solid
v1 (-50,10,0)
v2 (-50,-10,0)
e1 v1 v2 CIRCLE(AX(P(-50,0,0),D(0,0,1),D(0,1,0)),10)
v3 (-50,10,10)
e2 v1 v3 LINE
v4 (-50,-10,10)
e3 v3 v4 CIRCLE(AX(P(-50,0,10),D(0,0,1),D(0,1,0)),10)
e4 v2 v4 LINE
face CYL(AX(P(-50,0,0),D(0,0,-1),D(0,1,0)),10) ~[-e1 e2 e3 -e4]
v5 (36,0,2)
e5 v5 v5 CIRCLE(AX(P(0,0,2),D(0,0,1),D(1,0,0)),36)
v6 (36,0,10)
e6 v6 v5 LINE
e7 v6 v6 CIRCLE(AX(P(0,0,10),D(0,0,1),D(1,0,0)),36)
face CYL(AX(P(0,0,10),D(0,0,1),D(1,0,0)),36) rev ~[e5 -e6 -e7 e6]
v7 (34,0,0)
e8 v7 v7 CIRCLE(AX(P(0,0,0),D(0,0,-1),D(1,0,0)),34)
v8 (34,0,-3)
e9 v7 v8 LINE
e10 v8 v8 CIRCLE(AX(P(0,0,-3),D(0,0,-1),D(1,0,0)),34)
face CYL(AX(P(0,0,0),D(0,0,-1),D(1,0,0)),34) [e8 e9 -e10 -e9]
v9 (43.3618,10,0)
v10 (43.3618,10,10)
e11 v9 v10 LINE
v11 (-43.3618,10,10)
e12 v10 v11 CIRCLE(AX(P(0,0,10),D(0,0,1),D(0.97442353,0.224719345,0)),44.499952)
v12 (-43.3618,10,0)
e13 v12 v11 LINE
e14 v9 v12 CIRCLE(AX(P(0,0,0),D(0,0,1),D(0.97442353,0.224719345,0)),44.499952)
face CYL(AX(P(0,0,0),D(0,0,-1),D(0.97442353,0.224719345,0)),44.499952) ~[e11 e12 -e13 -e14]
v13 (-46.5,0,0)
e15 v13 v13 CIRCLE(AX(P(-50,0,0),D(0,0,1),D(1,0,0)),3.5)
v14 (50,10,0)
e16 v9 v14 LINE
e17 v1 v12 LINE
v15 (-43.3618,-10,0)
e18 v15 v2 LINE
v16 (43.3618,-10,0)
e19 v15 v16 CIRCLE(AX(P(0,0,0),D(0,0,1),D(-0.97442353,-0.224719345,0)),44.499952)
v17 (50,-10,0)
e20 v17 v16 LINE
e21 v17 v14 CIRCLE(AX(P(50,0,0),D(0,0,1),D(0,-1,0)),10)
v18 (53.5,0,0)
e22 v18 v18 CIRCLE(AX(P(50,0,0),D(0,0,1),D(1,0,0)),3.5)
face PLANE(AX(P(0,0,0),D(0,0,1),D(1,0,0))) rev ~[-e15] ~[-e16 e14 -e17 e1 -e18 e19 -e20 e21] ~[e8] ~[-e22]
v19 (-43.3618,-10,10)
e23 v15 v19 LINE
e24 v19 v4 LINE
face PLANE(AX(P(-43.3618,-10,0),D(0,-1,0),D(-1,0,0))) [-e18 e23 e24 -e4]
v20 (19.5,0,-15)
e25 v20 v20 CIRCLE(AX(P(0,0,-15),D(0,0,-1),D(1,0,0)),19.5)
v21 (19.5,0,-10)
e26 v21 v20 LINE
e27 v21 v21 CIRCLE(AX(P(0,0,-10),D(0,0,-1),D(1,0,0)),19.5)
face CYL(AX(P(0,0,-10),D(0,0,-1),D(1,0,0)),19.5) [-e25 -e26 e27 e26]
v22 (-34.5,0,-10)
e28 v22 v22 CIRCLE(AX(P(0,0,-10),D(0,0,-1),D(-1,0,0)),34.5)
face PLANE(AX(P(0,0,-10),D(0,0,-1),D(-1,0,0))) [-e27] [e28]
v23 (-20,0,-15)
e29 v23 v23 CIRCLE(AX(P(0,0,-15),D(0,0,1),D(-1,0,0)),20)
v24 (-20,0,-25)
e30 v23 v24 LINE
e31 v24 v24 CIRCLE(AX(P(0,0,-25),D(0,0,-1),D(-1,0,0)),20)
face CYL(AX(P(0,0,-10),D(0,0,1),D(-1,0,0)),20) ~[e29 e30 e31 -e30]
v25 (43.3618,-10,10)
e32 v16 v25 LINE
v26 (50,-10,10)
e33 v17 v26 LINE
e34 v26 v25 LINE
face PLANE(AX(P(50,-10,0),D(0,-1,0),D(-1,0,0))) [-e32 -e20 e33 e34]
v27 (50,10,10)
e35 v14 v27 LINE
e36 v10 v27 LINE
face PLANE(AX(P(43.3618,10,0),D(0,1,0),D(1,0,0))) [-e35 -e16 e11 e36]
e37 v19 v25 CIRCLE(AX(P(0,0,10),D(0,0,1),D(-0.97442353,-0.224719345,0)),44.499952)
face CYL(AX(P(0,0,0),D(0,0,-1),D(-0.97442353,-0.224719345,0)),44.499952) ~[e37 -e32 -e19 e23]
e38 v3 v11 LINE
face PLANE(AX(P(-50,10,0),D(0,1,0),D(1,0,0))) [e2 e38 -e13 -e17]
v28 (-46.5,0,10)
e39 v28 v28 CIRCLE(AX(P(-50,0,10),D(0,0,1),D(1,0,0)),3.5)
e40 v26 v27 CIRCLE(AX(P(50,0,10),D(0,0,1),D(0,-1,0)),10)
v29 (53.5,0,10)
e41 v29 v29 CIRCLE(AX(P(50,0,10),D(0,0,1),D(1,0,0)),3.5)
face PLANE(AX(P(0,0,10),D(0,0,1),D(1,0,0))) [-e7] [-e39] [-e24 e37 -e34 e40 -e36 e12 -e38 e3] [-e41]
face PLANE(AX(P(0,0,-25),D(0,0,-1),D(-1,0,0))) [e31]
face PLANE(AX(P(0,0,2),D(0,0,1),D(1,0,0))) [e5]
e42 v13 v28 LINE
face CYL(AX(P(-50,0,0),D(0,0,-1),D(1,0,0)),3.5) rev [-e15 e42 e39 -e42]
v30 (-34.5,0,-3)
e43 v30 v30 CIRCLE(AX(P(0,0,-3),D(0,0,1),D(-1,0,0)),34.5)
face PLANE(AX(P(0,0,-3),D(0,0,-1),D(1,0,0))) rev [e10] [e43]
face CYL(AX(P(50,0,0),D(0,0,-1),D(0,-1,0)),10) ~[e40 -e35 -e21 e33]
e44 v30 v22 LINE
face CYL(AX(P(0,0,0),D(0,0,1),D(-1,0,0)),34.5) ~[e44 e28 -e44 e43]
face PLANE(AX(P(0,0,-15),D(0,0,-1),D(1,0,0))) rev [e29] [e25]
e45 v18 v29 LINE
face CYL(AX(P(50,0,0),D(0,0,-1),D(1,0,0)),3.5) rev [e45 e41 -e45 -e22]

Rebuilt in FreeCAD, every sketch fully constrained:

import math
import FreeCAD as App
import Part
import Sketcher

doc = App.newDocument("Part")
body = doc.addObject("PartDesign::Body", "Body")

# Sketch on XY plane
sketch1 = doc.addObject("Sketcher::SketchObject", "Sketch")
body.addObject(sketch1)
sketch1.AttachmentSupport = (doc.XY_Plane, [""])
sketch1.MapMode = "FlatFace"
sketch1.addGeometry(Part.LineSegment(App.Vector(43.3618, -10, 0), App.Vector(50, -10, 0)), False)
sketch1.addGeometry(Part.ArcOfCircle(Part.Circle(App.Vector(50, 0, 0), App.Vector(0, 0, 1), 10), math.radians(-90), math.radians(90)), False)
sketch1.addGeometry(Part.LineSegment(App.Vector(50, 10, 0), App.Vector(43.3618, 10, 0)), False)
sketch1.addGeometry(Part.ArcOfCircle(Part.Circle(App.Vector(0, 0, 0), App.Vector(0, 0, 1), 44.499952), math.radians(12.986375), math.radians(167.013625)), False)
sketch1.addGeometry(Part.LineSegment(App.Vector(-43.3618, 10, 0), App.Vector(-50, 10, 0)), False)
sketch1.addGeometry(Part.ArcOfCircle(Part.Circle(App.Vector(-50, 0, 0), App.Vector(0, 0, 1), 10), math.radians(90), math.radians(270)), False)
sketch1.addGeometry(Part.LineSegment(App.Vector(-50, -10, 0), App.Vector(-43.3618, -10, 0)), False)
sketch1.addGeometry(Part.ArcOfCircle(Part.Circle(App.Vector(0, 0, 0), App.Vector(0, 0, 1), 44.499952), math.radians(-167.013625), math.radians(-12.986375)), False)
sketch1.addGeometry(Part.Circle(App.Vector(-50, 0, 0), App.Vector(0, 0, 1), 3.5), False)
sketch1.addGeometry(Part.Circle(App.Vector(50, 0, 0), App.Vector(0, 0, 1), 3.5), False)
sketch1.addConstraint(Sketcher.Constraint("Tangent", 0, 2, 1, 1))
sketch1.addConstraint(Sketcher.Constraint("Tangent", 1, 2, 2, 1))
sketch1.addConstraint(Sketcher.Constraint("Coincident", 2, 2, 3, 1))
sketch1.addConstraint(Sketcher.Constraint("Coincident", 3, 2, 4, 1))
sketch1.addConstraint(Sketcher.Constraint("Tangent", 4, 2, 5, 1))
sketch1.addConstraint(Sketcher.Constraint("Tangent", 5, 2, 6, 1))
sketch1.addConstraint(Sketcher.Constraint("Coincident", 6, 2, 7, 1))
sketch1.addConstraint(Sketcher.Constraint("Coincident", 7, 2, 0, 1))
sketch1.addConstraint(Sketcher.Constraint("Horizontal", 0))
sketch1.addConstraint(Sketcher.Constraint("Horizontal", 2))
sketch1.addConstraint(Sketcher.Constraint("Horizontal", 4))
sketch1.addConstraint(Sketcher.Constraint("Horizontal", 6))
sketch1.addConstraint(Sketcher.Constraint("Coincident", 3, 3, -1, 1))
sketch1.addConstraint(Sketcher.Constraint("Coincident", 7, 3, -1, 1))
sketch1.addConstraint(Sketcher.Constraint("Coincident", 8, 3, 5, 3))
sketch1.addConstraint(Sketcher.Constraint("Coincident", 9, 3, 1, 3))
sketch1.addConstraint(Sketcher.Constraint("Equal", 1, 5))
sketch1.addConstraint(Sketcher.Constraint("Equal", 3, 7))
sketch1.addConstraint(Sketcher.Constraint("Equal", 8, 9))
sketch1.addConstraint(Sketcher.Constraint("Symmetric", 1, 3, 5, 3, -1, 1))
sketch1.addConstraint(Sketcher.Constraint("PointOnObject", 1, 3, -1))
sketch1.addConstraint(Sketcher.Constraint("Diameter", 8, 7.0))
sketch1.addConstraint(Sketcher.Constraint("Radius", 1, 10.0))
sketch1.addConstraint(Sketcher.Constraint("DistanceX", -1, 1, 1, 3, 50.0))
sketch1.addConstraint(Sketcher.Constraint("Radius", 3, 44.5))
pad1 = doc.addObject("PartDesign::Pad", "Pad")
body.addObject(pad1)
pad1.Profile = sketch1
pad1.Length = 10

# Sketch on XY plane
sketch2 = doc.addObject("Sketcher::SketchObject", "Sketch001")
body.addObject(sketch2)
sketch2.AttachmentSupport = (doc.XY_Plane, [""])
sketch2.MapMode = "FlatFace"
sketch2.AttachmentOffset = App.Placement(App.Vector(0, 0, 10), App.Rotation())
sketch2.addGeometry(Part.Circle(App.Vector(0, 0, 0), App.Vector(0, 0, 1), 36), False)
sketch2.addConstraint(Sketcher.Constraint("Coincident", 0, 3, -1, 1))
sketch2.addConstraint(Sketcher.Constraint("Diameter", 0, 72.0))
pocket1 = doc.addObject("PartDesign::Pocket", "Pocket")
body.addObject(pocket1)
pocket1.Profile = sketch2
pocket1.Length = 8

# Sketch on XY plane
sketch3 = doc.addObject("Sketcher::SketchObject", "Sketch002")
body.addObject(sketch3)
sketch3.AttachmentSupport = (doc.XY_Plane, [""])
sketch3.MapMode = "FlatFace"
sketch3.addGeometry(Part.Circle(App.Vector(0, 0, 0), App.Vector(0, 0, 1), 34.5), False)
sketch3.addConstraint(Sketcher.Constraint("Coincident", 0, 3, -1, 1))
sketch3.addConstraint(Sketcher.Constraint("Diameter", 0, 69.0))
pad2 = doc.addObject("PartDesign::Pad", "Pad001")
body.addObject(pad2)
pad2.Profile = sketch3
pad2.Length = 10
pad2.Reversed = True

# Sketch on XY plane
sketch4 = doc.addObject("Sketcher::SketchObject", "Sketch003")
body.addObject(sketch4)
sketch4.AttachmentSupport = (doc.XY_Plane, [""])
sketch4.MapMode = "FlatFace"
sketch4.AttachmentOffset = App.Placement(App.Vector(0, 0, -10), App.Rotation())
sketch4.addGeometry(Part.Circle(App.Vector(0, 0, 0), App.Vector(0, 0, 1), 20), False)
sketch4.addConstraint(Sketcher.Constraint("Coincident", 0, 3, -1, 1))
sketch4.addConstraint(Sketcher.Constraint("Diameter", 0, 40.0))
pad3 = doc.addObject("PartDesign::Pad", "Pad002")
body.addObject(pad3)
pad3.Profile = sketch4
pad3.Length = 15
pad3.Reversed = True

# Sketch on XZ plane
sketch5 = doc.addObject("Sketcher::SketchObject", "Sketch004")
body.addObject(sketch5)
sketch5.AttachmentSupport = (doc.XZ_Plane, [""])
sketch5.MapMode = "FlatFace"
sketch5.addGeometry(Part.LineSegment(App.Vector(34, 0, 0), App.Vector(34.5, 0, 0)), False)
sketch5.addGeometry(Part.LineSegment(App.Vector(34.5, 0, 0), App.Vector(34.5, -3, 0)), False)
sketch5.addGeometry(Part.LineSegment(App.Vector(34.5, -3, 0), App.Vector(34, -3, 0)), False)
sketch5.addGeometry(Part.LineSegment(App.Vector(34, -3, 0), App.Vector(34, 0, 0)), False)
sketch5.addGeometry(Part.LineSegment(App.Vector(19.5, -10, 0), App.Vector(20, -10, 0)), False)
sketch5.addGeometry(Part.LineSegment(App.Vector(20, -10, 0), App.Vector(20, -15, 0)), False)
sketch5.addGeometry(Part.LineSegment(App.Vector(20, -15, 0), App.Vector(19.5, -15, 0)), False)
sketch5.addGeometry(Part.LineSegment(App.Vector(19.5, -15, 0), App.Vector(19.5, -10, 0)), False)
sketch5.addConstraint(Sketcher.Constraint("Coincident", 0, 2, 1, 1))
sketch5.addConstraint(Sketcher.Constraint("Coincident", 1, 2, 2, 1))
sketch5.addConstraint(Sketcher.Constraint("Coincident", 2, 2, 3, 1))
sketch5.addConstraint(Sketcher.Constraint("Coincident", 3, 2, 0, 1))
sketch5.addConstraint(Sketcher.Constraint("Coincident", 4, 2, 5, 1))
sketch5.addConstraint(Sketcher.Constraint("Coincident", 5, 2, 6, 1))
sketch5.addConstraint(Sketcher.Constraint("Coincident", 6, 2, 7, 1))
sketch5.addConstraint(Sketcher.Constraint("Coincident", 7, 2, 4, 1))
sketch5.addConstraint(Sketcher.Constraint("Horizontal", 0))
sketch5.addConstraint(Sketcher.Constraint("Vertical", 1))
sketch5.addConstraint(Sketcher.Constraint("Horizontal", 2))
sketch5.addConstraint(Sketcher.Constraint("Vertical", 3))
sketch5.addConstraint(Sketcher.Constraint("Horizontal", 4))
sketch5.addConstraint(Sketcher.Constraint("Vertical", 5))
sketch5.addConstraint(Sketcher.Constraint("Horizontal", 6))
sketch5.addConstraint(Sketcher.Constraint("Vertical", 7))
sketch5.addConstraint(Sketcher.Constraint("PointOnObject", 0, 2, -1))
sketch5.addConstraint(Sketcher.Constraint("Equal", 2, 4))
sketch5.addConstraint(Sketcher.Constraint("DistanceY", 1, 2, 1, 1, 3.0))
sketch5.addConstraint(Sketcher.Constraint("DistanceY", 5, 2, 5, 1, 5.0))
sketch5.addConstraint(Sketcher.Constraint("DistanceX", 0, 1, 0, 2, 0.5))
sketch5.addConstraint(Sketcher.Constraint("DistanceY", 4, 2, 2, 2, 7.0))
sketch5.addConstraint(Sketcher.Constraint("DistanceX", -1, 1, 2, 2, 34.0))
sketch5.addConstraint(Sketcher.Constraint("DistanceX", -1, 1, 4, 2, 20.0))
groove = doc.addObject("PartDesign::Groove", "Groove")
body.addObject(groove)
groove.Profile = sketch5
groove.ReferenceAxis = (sketch5, ["V_Axis"])
groove.Angle = 360

doc.recompute()
